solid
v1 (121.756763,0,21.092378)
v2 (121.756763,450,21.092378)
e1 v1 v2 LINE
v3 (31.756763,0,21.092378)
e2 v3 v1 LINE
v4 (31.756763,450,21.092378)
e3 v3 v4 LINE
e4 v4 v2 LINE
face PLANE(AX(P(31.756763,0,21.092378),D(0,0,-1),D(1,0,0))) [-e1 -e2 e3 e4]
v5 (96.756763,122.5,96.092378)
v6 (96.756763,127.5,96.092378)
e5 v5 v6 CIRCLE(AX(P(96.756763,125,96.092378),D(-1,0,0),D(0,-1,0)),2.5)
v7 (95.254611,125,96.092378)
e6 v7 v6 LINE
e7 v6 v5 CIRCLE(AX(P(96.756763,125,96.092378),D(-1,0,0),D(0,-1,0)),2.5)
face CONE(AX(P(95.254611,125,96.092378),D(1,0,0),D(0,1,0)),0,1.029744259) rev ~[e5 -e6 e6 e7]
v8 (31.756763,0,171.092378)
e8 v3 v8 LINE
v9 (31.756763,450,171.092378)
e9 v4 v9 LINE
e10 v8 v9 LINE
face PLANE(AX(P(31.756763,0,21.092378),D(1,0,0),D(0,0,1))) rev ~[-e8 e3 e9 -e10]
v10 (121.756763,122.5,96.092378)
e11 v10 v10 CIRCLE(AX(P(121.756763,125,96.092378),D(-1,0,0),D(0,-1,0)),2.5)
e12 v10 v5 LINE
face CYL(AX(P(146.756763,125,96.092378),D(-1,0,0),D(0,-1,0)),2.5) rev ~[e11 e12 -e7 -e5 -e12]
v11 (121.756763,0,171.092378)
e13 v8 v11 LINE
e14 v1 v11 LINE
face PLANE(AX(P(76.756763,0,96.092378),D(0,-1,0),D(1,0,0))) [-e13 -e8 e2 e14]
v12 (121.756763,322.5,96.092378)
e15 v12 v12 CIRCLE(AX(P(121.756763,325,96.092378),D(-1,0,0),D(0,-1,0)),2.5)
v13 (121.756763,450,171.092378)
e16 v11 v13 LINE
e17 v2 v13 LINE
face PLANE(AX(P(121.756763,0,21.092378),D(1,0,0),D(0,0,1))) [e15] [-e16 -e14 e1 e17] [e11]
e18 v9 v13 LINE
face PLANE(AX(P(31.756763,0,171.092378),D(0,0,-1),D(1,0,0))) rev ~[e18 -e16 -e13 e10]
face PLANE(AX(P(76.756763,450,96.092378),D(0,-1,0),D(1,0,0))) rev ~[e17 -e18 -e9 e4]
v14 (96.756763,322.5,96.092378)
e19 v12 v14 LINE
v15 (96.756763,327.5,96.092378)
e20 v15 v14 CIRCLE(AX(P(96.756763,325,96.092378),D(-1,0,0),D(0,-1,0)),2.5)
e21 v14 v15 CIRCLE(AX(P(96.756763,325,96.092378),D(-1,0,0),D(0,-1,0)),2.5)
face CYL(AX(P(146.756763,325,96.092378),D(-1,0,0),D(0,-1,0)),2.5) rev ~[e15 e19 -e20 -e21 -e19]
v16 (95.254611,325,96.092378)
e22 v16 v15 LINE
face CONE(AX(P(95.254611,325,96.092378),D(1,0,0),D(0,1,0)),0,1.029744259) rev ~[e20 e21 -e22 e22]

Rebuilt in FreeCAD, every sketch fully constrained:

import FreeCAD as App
import Part
import Sketcher
from FreeCAD import Vector

doc = App.newDocument("Part")
params = doc.addObject("Spreadsheet::Sheet", "Params")
for row, (alias, value) in enumerate([
    ("sketch1_width", "90 mm"),
    ("sketch1_height", "150 mm"),
    ("pad1_length", "450 mm"),
    ("sketch2_diameter", "5 mm"),
    ("hole_diameter", "5 mm"),
    ("hole_depth", "25 mm"),
], start=1):
    params.set(f"A{row}", alias)
    params.set(f"B{row}", "=" + value)
    params.setAlias(f"B{row}", alias)

body = doc.addObject("PartDesign::Body", "Body")

# Sketch on XZ plane
sketch1 = doc.addObject("Sketcher::SketchObject", "Sketch")
body.addObject(sketch1)
sketch1.AttachmentSupport = (doc.XZ_Plane, [""])
sketch1.MapMode = "FlatFace"
sketch1.addGeometry(Part.LineSegment(Vector(31.756763, 171.092378, 0), Vector(31.756763, 21.092378, 0)), False)
sketch1.addGeometry(Part.LineSegment(Vector(31.756763, 21.092378, 0), Vector(121.756763, 21.092378, 0)), False)
sketch1.addGeometry(Part.LineSegment(Vector(121.756763, 21.092378, 0), Vector(121.756763, 171.092378, 0)), False)
sketch1.addGeometry(Part.LineSegment(Vector(121.756763, 171.092378, 0), Vector(31.756763, 171.092378, 0)), False)
sketch1.addConstraint(Sketcher.Constraint("Coincident", 0, 2, 1, 1))
sketch1.addConstraint(Sketcher.Constraint("Coincident", 1, 2, 2, 1))
sketch1.addConstraint(Sketcher.Constraint("Coincident", 2, 2, 3, 1))
sketch1.addConstraint(Sketcher.Constraint("Coincident", 3, 2, 0, 1))
sketch1.addConstraint(Sketcher.Constraint("Vertical", 0))
sketch1.addConstraint(Sketcher.Constraint("Horizontal", 1))
sketch1.addConstraint(Sketcher.Constraint("Vertical", 2))
sketch1.addConstraint(Sketcher.Constraint("Horizontal", 3))
sketch1.addConstraint(Sketcher.Constraint("DistanceX", 1, 1, 1, 2, 90.0))
sketch1.addConstraint(Sketcher.Constraint("DistanceY", 0, 2, 0, 1, 150.0))
sketch1.addConstraint(Sketcher.Constraint("DistanceX", -1, 1, 0, 2, 31.756763))
sketch1.addConstraint(Sketcher.Constraint("DistanceY", -1, 1, 0, 2, 21.092378))
sketch1.setExpression("Constraints[8]", "Params.sketch1_width")
sketch1.setExpression("Constraints[9]", "Params.sketch1_height")
pad1 = doc.addObject("PartDesign::Pad", "Pad")
body.addObject(pad1)
pad1.Profile = sketch1
pad1.setExpression("Length", "Params.pad1_length")
pad1.Reversed = True

# Sketch on YZ plane
sketch2 = doc.addObject("Sketcher::SketchObject", "Sketch001")
body.addObject(sketch2)
sketch2.AttachmentSupport = (doc.YZ_Plane, [""])
sketch2.MapMode = "FlatFace"
sketch2.AttachmentOffset = App.Placement(Vector(0, 0, 121.756763), App.Rotation())
sketch2.addGeometry(Part.Circle(Vector(325, 96.092378, 0), Vector(0, 0, 1), 2.5), False)
sketch2.addGeometry(Part.Circle(Vector(125, 96.092378, 0), Vector(0, 0, 1), 2.5), False)
sketch2.addConstraint(Sketcher.Constraint("Equal", 0, 1))
sketch2.addConstraint(Sketcher.Constraint("Horizontal", 0, 3, 1, 3))
sketch2.addConstraint(Sketcher.Constraint("Diameter", 0, 5.0))
sketch2.addConstraint(Sketcher.Constraint("DistanceX", -1, 1, 0, 3, 325.0))
sketch2.addConstraint(Sketcher.Constraint("DistanceX", -1, 1, 1, 3, 125.0))
sketch2.addConstraint(Sketcher.Constraint("DistanceY", -1, 1, 0, 3, 96.092378))
sketch2.setExpression("Constraints[2]", "Params.sketch2_diameter")
doc.recompute()
hole = doc.addObject("PartDesign::Hole", "Hole")
body.addObject(hole)
hole.Profile = sketch2
hole.ThreadType = "None"
hole.setExpression("Diameter", "Params.hole_diameter")
hole.DepthType = "Dimension"
hole.setExpression("Depth", "Params.hole_depth")
hole.DrillPoint = "Angled"
hole.DrillPointAngle = 118

doc.recompute()
